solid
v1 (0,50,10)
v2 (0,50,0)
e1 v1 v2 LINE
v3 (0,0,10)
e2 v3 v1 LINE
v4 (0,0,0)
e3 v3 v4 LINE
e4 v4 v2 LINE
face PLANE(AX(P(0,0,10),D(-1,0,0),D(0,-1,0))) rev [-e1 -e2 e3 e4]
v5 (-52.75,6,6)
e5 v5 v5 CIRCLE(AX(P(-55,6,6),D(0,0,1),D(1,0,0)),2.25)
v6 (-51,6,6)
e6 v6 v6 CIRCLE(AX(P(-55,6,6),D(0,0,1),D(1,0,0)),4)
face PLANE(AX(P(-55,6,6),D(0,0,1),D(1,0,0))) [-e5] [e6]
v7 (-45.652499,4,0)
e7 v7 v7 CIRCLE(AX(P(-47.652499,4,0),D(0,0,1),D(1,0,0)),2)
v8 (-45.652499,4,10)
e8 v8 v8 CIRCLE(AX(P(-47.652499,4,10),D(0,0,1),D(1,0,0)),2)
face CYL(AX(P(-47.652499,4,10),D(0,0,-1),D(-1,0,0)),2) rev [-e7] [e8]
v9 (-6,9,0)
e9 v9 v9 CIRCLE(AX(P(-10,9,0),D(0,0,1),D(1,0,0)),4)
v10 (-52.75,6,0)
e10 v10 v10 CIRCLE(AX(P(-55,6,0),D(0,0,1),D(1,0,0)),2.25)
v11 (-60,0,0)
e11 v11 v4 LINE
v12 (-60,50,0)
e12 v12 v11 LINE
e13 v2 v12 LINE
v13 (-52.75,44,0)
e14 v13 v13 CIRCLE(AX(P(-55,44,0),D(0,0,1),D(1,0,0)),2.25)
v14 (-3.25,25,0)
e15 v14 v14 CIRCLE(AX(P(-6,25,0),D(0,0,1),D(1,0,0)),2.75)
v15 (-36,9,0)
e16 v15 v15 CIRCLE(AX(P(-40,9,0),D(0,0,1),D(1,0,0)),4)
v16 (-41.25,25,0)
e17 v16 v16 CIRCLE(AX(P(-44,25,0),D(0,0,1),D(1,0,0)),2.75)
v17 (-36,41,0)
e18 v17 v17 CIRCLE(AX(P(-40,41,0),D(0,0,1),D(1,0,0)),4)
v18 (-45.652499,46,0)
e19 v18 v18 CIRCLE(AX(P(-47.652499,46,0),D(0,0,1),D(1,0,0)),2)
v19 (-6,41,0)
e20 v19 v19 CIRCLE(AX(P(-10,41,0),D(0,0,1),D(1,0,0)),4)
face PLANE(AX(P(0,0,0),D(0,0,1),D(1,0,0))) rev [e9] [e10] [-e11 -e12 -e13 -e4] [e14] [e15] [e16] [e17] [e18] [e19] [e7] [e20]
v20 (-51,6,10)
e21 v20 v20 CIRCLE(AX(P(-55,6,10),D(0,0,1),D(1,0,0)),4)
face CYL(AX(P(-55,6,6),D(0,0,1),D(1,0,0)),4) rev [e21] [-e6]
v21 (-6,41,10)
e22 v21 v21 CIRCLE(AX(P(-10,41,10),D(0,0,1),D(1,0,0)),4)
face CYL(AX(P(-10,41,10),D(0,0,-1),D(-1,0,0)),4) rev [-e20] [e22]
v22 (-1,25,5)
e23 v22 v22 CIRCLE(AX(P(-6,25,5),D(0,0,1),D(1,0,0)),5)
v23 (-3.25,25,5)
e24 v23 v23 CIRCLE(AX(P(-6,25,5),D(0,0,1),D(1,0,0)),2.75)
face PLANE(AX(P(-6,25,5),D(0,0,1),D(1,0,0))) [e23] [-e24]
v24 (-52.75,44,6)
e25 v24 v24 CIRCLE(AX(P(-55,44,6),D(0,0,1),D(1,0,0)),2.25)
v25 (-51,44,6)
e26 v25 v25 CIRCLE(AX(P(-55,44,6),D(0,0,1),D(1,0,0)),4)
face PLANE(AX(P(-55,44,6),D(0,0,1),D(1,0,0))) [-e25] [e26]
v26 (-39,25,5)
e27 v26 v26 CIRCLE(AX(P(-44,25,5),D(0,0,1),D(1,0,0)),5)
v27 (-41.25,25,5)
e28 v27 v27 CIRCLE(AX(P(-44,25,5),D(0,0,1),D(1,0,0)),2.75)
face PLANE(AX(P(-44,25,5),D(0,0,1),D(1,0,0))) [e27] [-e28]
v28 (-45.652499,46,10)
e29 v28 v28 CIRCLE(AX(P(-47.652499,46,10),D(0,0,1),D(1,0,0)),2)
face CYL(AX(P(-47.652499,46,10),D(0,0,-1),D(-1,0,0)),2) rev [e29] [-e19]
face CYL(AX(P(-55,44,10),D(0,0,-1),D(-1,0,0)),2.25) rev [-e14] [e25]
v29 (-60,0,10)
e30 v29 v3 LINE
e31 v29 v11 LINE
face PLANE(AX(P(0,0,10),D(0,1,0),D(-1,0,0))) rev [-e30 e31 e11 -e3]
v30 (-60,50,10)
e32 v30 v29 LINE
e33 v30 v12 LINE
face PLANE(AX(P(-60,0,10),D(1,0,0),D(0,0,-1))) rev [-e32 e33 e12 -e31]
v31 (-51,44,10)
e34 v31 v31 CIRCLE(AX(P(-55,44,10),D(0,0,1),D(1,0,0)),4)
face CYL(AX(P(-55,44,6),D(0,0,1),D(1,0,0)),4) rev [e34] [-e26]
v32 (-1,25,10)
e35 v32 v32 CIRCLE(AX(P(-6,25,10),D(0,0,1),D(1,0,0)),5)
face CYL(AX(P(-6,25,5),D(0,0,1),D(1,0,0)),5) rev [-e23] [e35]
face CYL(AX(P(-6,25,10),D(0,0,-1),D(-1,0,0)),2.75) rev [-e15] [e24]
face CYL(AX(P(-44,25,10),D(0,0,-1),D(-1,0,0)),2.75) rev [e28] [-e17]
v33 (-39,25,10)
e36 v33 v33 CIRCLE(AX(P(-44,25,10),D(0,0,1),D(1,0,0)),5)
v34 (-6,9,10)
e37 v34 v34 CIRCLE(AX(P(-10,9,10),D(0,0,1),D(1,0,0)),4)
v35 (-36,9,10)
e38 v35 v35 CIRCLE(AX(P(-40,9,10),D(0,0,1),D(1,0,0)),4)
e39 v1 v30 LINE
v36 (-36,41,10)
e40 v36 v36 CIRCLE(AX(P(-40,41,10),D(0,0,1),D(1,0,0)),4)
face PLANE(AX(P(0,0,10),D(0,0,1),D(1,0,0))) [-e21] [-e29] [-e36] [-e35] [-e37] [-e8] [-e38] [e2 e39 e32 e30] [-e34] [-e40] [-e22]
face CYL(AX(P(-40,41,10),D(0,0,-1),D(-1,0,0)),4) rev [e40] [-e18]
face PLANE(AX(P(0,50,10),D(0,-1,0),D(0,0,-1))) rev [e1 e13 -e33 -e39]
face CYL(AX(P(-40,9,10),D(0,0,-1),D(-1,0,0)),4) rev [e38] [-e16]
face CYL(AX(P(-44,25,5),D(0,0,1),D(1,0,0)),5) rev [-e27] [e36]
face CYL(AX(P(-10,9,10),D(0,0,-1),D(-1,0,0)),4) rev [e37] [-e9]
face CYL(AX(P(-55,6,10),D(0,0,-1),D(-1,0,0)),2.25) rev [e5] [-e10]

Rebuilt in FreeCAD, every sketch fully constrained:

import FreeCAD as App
import Part
import Sketcher
from FreeCAD import Vector

doc = App.newDocument("Part")
body = doc.addObject("PartDesign::Body", "Body")

# Sketch on XY plane
sketch1 = body.newObject("Sketcher::SketchObject", "Sketch")
sketch1.AttachmentSupport = (doc.getObject("XY_Plane"), [""])
sketch1.MapMode = "FlatFace"
sketch1.addGeometry([
    Part.LineSegment(Vector(-60, 50, 0), Vector(-60, 0, 0)),  # 0
    Part.LineSegment(Vector(-60, 0, 0), Vector(0, 0, 0)),  # 1
    Part.LineSegment(Vector(0, 0, 0), Vector(0, 50, 0)),  # 2
    Part.LineSegment(Vector(0, 50, 0), Vector(-60, 50, 0)),  # 3
    Part.Circle(Vector(-55, 6, 0), Vector(0, 0, 1), 2.25),  # 4
    Part.Circle(Vector(-47.652499, 4, 0), Vector(0, 0, 1), 2),  # 5
    Part.Circle(Vector(-40, 9, 0), Vector(0, 0, 1), 4),  # 6
    Part.Circle(Vector(-10, 9, 0), Vector(0, 0, 1), 4),  # 7
    Part.Circle(Vector(-44, 25, 0), Vector(0, 0, 1), 2.75),  # 8
    Part.Circle(Vector(-55, 44, 0), Vector(0, 0, 1), 2.25),  # 9
    Part.Circle(Vector(-47.652499, 46, 0), Vector(0, 0, 1), 2),  # 10
    Part.Circle(Vector(-40, 41, 0), Vector(0, 0, 1), 4),  # 11
    Part.Circle(Vector(-6, 25, 0), Vector(0, 0, 1), 2.75),  # 12
    Part.Circle(Vector(-10, 41, 0), Vector(0, 0, 1), 4),  # 13
], False)
sketch1.addConstraint([
    Sketcher.Constraint("Coincident", 0, 2, 1, 1),
    Sketcher.Constraint("Coincident", 1, 2, 2, 1),
    Sketcher.Constraint("Coincident", 2, 2, 3, 1),
    Sketcher.Constraint("Coincident", 3, 2, 0, 1),
    Sketcher.Constraint("Vertical", 0),
    Sketcher.Constraint("Horizontal", 1),
    Sketcher.Constraint("Vertical", 2),
    Sketcher.Constraint("Horizontal", 3),
    Sketcher.Constraint("Coincident", 1, 2, -1, 1),
    Sketcher.Constraint("Equal", 6, 7),
    Sketcher.Constraint("Equal", 4, 9),
    Sketcher.Constraint("Equal", 5, 10),
    Sketcher.Constraint("Equal", 7, 11),
    Sketcher.Constraint("Equal", 8, 12),
    Sketcher.Constraint("Equal", 11, 13),
    Sketcher.Constraint("Horizontal", 6, 3, 7, 3),
    Sketcher.Constraint("Horizontal", 8, 3, 12, 3),
    Sketcher.Constraint("Horizontal", 11, 3, 13, 3),
    Sketcher.Constraint("Vertical", 4, 3, 9, 3),
    Sketcher.Constraint("Vertical", 5, 3, 10, 3),
    Sketcher.Constraint("Vertical", 6, 3, 11, 3),
    Sketcher.Constraint("Vertical", 7, 3, 13, 3),
    Sketcher.Constraint("Diameter", 5, 4.0),
    Sketcher.Constraint("Diameter", 6, 8.0),
    Sketcher.Constraint("Diameter", 4, 4.5),
    Sketcher.Constraint("Diameter", 8, 5.5),
    Sketcher.Constraint("DistanceX", 1, 1, 1, 2, 60.0),
    Sketcher.Constraint("DistanceY", 0, 2, 0, 1, 50.0),
    Sketcher.Constraint("DistanceX", 4, 3, -1, 1, 55.0),
    Sketcher.Constraint("DistanceY", -1, 1, 4, 3, 6.0),
    Sketcher.Constraint("DistanceY", -1, 1, 5, 3, 4.0),
    Sketcher.Constraint("DistanceX", 6, 3, -1, 1, 40.0),
    Sketcher.Constraint("DistanceY", -1, 1, 6, 3, 9.0),
    Sketcher.Constraint("DistanceX", 7, 3, -1, 1, 10.0),
    Sketcher.Constraint("DistanceX", 8, 3, -1, 1, 44.0),
    Sketcher.Constraint("DistanceY", -1, 1, 8, 3, 25.0),
    Sketcher.Constraint("DistanceY", -1, 1, 9, 3, 44.0),
    Sketcher.Constraint("DistanceY", -1, 1, 10, 3, 46.0),
    Sketcher.Constraint("DistanceY", -1, 1, 11, 3, 41.0),
    Sketcher.Constraint("DistanceX", 12, 3, -1, 1, 6.0),
    Sketcher.Constraint("DistanceX", 5, 3, -1, 1, 47.652499),
])
pad1 = body.newObject("PartDesign::Pad", "Pad")
pad1.Profile = sketch1
pad1.Length = 10

# Sketch on XY plane
sketch2 = body.newObject("Sketcher::SketchObject", "Sketch001")
sketch2.AttachmentSupport = (doc.getObject("XY_Plane"), [""])
sketch2.MapMode = "FlatFace"
sketch2.AttachmentOffset = App.Placement(Vector(0, 0, 10), App.Rotation())
sketch2.addGeometry([
    Part.Circle(Vector(-55, 44, 0), Vector(0, 0, 1), 4),
    Part.Circle(Vector(-55, 6, 0), Vector(0, 0, 1), 4),
], False)
sketch2.addConstraint([
    Sketcher.Constraint("Equal", 0, 1),
    Sketcher.Constraint("Vertical", 0, 3, 1, 3),
    Sketcher.Constraint("Diameter", 0, 8.0),
    Sketcher.Constraint("DistanceX", 0, 3, -1, 1, 55.0),
    Sketcher.Constraint("DistanceY", -1, 1, 0, 3, 44.0),
    Sketcher.Constraint("DistanceY", -1, 1, 1, 3, 6.0),
])
pocket1 = body.newObject("PartDesign::Pocket", "Pocket")
pocket1.Profile = sketch2
pocket1.Length = 4

# Sketch on XY plane
sketch3 = body.newObject("Sketcher::SketchObject", "Sketch002")
sketch3.AttachmentSupport = (doc.getObject("XY_Plane"), [""])
sketch3.MapMode = "FlatFace"
sketch3.AttachmentOffset = App.Placement(Vector(0, 0, 10), App.Rotation())
sketch3.addGeometry([
    Part.Circle(Vector(-44, 25, 0), Vector(0, 0, 1), 5),
    Part.Circle(Vector(-6, 25, 0), Vector(0, 0, 1), 5),
], False)
sketch3.addConstraint([
    Sketcher.Constraint("Equal", 0, 1),
    Sketcher.Constraint("Horizontal", 0, 3, 1, 3),
    Sketcher.Constraint("Diameter", 0, 10.0),
    Sketcher.Constraint("DistanceX", 0, 3, -1, 1, 44.0),
    Sketcher.Constraint("DistanceY", -1, 1, 0, 3, 25.0),
    Sketcher.Constraint("DistanceX", 1, 3, -1, 1, 6.0),
])
pocket2 = body.newObject("PartDesign::Pocket", "Pocket001")
pocket2.Profile = sketch3
pocket2.Length = 5

doc.recompute()
